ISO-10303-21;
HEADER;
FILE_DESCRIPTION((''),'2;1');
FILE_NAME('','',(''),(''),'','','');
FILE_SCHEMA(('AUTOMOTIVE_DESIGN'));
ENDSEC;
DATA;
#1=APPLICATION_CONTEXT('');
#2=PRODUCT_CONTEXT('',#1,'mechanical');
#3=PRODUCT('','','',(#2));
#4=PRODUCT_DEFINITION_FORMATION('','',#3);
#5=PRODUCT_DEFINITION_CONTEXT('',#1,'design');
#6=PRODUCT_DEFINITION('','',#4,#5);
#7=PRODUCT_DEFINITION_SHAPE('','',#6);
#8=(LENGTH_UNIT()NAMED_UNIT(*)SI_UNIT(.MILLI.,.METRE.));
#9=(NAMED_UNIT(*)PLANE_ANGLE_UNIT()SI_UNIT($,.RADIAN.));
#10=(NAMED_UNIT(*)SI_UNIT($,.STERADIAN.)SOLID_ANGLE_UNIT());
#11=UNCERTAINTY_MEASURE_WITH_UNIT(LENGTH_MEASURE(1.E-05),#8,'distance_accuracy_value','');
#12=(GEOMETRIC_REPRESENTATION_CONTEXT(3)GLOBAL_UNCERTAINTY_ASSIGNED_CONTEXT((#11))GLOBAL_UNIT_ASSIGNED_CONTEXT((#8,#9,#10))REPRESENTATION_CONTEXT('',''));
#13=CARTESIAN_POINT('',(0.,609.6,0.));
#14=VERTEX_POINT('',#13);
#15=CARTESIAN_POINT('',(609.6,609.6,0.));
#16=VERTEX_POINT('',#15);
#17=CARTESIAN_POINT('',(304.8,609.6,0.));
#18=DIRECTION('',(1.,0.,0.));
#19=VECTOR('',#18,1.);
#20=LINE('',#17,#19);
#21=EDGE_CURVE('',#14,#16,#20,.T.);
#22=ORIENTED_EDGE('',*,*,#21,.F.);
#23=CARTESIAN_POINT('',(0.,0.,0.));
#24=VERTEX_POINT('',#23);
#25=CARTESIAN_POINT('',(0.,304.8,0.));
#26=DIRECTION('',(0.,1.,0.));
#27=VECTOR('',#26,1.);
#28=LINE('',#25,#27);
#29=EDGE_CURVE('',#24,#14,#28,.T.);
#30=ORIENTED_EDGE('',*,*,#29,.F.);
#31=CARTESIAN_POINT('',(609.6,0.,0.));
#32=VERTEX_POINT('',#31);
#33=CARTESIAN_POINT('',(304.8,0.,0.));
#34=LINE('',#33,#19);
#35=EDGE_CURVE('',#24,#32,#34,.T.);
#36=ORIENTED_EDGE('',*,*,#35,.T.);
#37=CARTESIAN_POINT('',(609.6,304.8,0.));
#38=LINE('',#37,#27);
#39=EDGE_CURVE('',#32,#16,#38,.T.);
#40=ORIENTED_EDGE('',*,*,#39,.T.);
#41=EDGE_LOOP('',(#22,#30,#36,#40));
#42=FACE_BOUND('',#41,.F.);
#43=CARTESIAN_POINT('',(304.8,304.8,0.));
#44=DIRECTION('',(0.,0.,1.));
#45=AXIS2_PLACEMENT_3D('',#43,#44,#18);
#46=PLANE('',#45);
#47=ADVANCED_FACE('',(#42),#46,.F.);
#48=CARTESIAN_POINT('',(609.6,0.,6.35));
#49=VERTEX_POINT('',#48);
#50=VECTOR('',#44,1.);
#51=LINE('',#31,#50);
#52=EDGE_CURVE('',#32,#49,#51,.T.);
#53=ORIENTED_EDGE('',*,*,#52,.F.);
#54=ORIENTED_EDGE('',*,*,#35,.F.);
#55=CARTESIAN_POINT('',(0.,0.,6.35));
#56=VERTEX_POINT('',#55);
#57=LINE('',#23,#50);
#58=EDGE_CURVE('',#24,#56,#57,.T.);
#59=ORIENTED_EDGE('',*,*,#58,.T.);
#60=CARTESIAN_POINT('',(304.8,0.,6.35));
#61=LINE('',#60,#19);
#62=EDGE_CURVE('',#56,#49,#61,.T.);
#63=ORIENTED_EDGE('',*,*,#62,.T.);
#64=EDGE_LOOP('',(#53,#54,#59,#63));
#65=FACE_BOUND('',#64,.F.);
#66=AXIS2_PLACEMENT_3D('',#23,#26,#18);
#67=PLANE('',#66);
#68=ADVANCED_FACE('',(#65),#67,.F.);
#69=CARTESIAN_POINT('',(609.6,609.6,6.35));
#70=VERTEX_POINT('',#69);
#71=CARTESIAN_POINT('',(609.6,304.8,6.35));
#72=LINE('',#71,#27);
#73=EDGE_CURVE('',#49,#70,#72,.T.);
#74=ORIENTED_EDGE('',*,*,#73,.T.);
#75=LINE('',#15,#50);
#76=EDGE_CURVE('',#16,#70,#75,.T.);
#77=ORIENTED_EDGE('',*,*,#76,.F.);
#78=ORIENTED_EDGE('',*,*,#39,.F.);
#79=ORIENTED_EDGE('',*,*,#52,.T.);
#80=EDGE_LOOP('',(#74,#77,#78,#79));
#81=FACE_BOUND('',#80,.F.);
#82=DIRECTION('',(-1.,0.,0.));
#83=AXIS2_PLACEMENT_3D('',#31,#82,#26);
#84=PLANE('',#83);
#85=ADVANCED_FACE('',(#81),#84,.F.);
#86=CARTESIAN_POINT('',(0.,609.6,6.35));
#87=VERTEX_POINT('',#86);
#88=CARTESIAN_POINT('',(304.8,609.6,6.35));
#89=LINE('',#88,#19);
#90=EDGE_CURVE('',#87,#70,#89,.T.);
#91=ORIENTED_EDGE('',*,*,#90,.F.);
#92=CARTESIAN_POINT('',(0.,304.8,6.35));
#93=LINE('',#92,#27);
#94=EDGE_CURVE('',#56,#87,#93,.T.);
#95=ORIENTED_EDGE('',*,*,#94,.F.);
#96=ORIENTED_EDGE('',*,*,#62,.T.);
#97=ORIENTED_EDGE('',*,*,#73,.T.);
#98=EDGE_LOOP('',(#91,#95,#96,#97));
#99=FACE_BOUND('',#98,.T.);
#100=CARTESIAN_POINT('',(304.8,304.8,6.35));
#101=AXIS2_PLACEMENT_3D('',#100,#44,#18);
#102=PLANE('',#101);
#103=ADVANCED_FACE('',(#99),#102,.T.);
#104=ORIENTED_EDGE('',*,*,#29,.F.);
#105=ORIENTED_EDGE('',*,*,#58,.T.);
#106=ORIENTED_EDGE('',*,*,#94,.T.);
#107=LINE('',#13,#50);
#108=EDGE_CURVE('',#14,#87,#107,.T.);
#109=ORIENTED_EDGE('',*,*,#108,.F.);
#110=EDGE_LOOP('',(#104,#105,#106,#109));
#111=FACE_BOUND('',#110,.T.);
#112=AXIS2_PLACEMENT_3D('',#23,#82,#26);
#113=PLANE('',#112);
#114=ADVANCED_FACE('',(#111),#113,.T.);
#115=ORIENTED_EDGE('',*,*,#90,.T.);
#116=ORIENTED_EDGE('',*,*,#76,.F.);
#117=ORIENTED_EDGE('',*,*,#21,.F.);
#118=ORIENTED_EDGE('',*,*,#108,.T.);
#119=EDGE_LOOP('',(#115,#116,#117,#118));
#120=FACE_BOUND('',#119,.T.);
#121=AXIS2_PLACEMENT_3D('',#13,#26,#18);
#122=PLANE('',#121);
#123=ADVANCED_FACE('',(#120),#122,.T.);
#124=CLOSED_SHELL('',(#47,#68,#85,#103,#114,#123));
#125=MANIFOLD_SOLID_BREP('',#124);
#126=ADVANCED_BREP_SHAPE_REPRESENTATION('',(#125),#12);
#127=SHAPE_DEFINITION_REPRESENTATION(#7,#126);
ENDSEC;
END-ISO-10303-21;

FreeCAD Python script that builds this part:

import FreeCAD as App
import Part
import Sketcher
from FreeCAD import Vector
Q = App.Units.Quantity


def add_polygon(sketch, points):
    """Adds a closed chain of lines whose ends are joined by coincident constraints."""
    first, n = sketch.GeometryCount, len(points)
    for a, b in zip(points, points[1:] + points[:1]):
        sketch.addGeometry(Part.LineSegment(App.Vector(*a, 0), App.Vector(*b, 0)), False)
    for i in range(n):
        sketch.addConstraint(Sketcher.Constraint("Coincident", first + i, 2, first + (i + 1) % n, 1))

doc = App.newDocument("Part")
params = doc.addObject("Spreadsheet::Sheet", "Params")
for row, (alias, value) in enumerate([
    ("sketch1_width", "24 in"),
    ("pad1_length", "0.25 in"),
], start=1):
    params.set(f"A{row}", alias)
    params.set(f"B{row}", "=" + value)
    params.setAlias(f"B{row}", alias)

body = doc.addObject("PartDesign::Body", "Body")

# Sketch on XY plane
sketch1 = body.newObject("Sketcher::SketchObject", "Sketch")
sketch1.AttachmentSupport = (doc.getObject("XY_Plane"), [""])
sketch1.MapMode = "FlatFace"
add_polygon(sketch1, [(0, 609.6), (0, 0), (609.6, 0), (609.6, 609.6)])  # lines 0-3
sketch1.addConstraint([
    Sketcher.Constraint("Vertical", 0),
    Sketcher.Constraint("Horizontal", 1),
    Sketcher.Constraint("Vertical", 2),
    Sketcher.Constraint("Horizontal", 3),
    Sketcher.Constraint("Coincident", 0, 2, -1, 1),
    Sketcher.Constraint("Equal", 3, 0),
    Sketcher.Constraint("DistanceX", 1, 1, 1, 2, Q("24 in")),
])
sketch1.setExpression("Constraints[10]", "Params.sketch1_width")
pad1 = body.newObject("PartDesign::Pad", "Pad")
pad1.Profile = sketch1
pad1.setExpression("Length", "Params.pad1_length")

doc.recompute()
